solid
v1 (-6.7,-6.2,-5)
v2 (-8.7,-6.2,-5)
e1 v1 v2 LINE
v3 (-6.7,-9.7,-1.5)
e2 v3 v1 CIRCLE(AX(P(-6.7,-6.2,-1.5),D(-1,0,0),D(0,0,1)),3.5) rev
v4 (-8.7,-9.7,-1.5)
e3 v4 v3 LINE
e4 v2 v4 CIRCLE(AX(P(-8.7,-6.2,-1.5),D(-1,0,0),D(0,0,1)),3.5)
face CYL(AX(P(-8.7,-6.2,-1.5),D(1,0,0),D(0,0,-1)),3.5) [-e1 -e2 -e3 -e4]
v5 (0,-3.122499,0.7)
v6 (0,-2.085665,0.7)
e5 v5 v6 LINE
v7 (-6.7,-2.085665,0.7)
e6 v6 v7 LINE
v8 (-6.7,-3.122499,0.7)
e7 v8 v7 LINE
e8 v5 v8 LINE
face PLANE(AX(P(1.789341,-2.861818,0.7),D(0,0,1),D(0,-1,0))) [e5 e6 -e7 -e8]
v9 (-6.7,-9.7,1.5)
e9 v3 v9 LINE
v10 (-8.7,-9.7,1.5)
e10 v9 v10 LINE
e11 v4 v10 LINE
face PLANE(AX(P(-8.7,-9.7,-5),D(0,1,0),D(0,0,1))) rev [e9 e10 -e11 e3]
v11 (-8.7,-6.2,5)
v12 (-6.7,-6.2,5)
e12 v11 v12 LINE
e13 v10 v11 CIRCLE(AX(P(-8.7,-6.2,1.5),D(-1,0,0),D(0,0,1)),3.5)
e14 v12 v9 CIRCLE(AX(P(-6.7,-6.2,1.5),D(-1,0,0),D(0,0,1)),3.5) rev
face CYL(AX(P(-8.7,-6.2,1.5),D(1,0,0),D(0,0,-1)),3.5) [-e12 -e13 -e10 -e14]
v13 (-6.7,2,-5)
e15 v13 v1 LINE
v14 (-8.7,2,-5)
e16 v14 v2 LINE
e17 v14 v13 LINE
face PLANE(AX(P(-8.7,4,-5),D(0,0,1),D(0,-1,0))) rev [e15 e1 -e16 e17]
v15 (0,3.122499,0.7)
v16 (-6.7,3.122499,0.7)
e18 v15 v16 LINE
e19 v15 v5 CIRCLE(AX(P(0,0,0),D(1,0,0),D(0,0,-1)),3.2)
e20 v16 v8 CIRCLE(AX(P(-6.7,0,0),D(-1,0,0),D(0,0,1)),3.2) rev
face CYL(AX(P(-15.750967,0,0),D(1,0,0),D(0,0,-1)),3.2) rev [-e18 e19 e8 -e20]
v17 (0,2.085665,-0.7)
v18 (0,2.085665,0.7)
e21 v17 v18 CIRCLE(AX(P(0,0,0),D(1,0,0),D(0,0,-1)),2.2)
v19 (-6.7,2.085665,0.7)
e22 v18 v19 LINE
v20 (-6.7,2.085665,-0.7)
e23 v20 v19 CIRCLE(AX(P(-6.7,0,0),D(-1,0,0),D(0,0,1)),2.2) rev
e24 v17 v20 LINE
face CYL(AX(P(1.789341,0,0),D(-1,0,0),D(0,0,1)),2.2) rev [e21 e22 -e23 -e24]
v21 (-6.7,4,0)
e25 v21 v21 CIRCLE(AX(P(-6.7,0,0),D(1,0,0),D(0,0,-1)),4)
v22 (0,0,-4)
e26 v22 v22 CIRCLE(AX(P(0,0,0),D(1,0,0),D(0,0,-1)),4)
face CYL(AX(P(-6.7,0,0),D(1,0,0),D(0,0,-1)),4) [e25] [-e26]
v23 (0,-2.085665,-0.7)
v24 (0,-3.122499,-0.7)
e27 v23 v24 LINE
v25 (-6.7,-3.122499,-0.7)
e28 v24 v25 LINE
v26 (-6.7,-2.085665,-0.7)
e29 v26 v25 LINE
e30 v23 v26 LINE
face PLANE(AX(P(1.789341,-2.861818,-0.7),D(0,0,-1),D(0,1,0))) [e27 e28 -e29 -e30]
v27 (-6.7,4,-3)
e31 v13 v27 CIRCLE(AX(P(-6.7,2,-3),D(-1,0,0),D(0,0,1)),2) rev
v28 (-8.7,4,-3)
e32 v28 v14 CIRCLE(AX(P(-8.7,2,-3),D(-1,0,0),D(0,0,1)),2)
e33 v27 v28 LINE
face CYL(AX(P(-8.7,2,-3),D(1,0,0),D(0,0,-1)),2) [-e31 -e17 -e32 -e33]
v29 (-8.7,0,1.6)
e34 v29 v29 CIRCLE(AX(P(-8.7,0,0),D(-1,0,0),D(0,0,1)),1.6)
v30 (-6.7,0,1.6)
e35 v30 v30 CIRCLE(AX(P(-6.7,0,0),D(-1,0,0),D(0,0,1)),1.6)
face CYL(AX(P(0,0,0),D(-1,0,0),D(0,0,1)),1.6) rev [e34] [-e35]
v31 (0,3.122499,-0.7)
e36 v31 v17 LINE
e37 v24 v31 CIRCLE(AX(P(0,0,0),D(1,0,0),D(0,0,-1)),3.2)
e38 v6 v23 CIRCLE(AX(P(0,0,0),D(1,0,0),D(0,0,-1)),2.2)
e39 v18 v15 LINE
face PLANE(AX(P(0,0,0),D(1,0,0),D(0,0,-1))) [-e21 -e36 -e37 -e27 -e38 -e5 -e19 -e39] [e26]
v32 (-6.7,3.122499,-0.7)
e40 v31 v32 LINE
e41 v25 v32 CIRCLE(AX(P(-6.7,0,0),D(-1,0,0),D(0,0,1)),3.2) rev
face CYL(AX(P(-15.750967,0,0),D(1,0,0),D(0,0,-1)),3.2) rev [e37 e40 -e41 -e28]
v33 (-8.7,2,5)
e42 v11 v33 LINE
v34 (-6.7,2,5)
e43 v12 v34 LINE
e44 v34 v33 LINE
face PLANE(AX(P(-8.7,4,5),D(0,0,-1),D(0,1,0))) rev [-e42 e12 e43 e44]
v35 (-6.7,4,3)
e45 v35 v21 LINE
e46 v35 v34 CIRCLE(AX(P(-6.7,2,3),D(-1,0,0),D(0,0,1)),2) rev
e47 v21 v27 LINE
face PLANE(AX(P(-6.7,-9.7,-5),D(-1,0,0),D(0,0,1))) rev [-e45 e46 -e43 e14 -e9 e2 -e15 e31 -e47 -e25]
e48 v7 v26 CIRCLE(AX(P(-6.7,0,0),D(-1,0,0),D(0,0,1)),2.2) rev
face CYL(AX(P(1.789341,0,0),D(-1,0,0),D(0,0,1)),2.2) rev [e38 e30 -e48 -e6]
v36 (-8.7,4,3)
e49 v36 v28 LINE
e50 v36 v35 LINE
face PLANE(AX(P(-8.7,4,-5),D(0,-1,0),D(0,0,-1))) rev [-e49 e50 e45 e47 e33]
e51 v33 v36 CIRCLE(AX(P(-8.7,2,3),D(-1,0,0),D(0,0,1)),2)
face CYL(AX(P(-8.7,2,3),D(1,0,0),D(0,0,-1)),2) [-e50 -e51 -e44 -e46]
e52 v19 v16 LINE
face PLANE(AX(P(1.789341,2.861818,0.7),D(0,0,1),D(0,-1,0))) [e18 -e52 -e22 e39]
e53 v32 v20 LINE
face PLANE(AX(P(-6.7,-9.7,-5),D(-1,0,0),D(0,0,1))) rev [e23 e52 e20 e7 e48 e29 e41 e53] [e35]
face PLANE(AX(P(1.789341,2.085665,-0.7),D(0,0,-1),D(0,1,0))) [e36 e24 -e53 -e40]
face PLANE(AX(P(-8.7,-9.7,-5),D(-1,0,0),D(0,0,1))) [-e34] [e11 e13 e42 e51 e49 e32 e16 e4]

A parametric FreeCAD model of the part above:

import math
import FreeCAD as App
import Part
import Sketcher
Q = App.Units.Quantity


def edges_at(feature, points):
    """Names of the edges that pass closest to the given points."""
    edges = feature.Shape.Edges
    near = lambda p: min(range(len(edges)), key=lambda i: edges[i].distToShape(Part.Vertex(*p))[0])
    return sorted({f"Edge{near(p) + 1}" for p in points})

doc = App.newDocument("Part")
body = doc.addObject("PartDesign::Body", "Body")

# Sketch on YZ plane
sketch1 = body.newObject("Sketcher::SketchObject", "Sketch")
sketch1.AttachmentSupport = (doc.getObject("YZ_Plane"), [""])
sketch1.MapMode = "FlatFace"
sketch1.addGeometry(Part.Circle(App.Vector(0, 0, 0), App.Vector(0, 0, 1), 4), False)
sketch1.addConstraint([
    Sketcher.Constraint("Coincident", 0, 3, -1, 1),
    Sketcher.Constraint("Diameter", 0, Q("8 mm")),
])
pad1 = body.newObject("PartDesign::Pad", "Pad")
pad1.Profile = sketch1
pad1.Length = 6.7
pad1.Reversed = True

# Sketch on YZ plane
sketch2 = body.newObject("Sketcher::SketchObject", "Sketch001")
sketch2.AttachmentSupport = (doc.getObject("YZ_Plane"), [""])
sketch2.MapMode = "FlatFace"
sketch2.AttachmentOffset = App.Placement(App.Vector(0, 0, -6.7), App.Rotation())
sketch2.addGeometry([
    Part.LineSegment(App.Vector(4, -5, 0), App.Vector(-9.7, -5, 0)),
    Part.LineSegment(App.Vector(-9.7, -5, 0), App.Vector(-9.7, 5, 0)),
    Part.LineSegment(App.Vector(-9.7, 5, 0), App.Vector(4, 5, 0)),
    Part.LineSegment(App.Vector(4, 5, 0), App.Vector(4, -5, 0)),
], False)
sketch2.addConstraint([
    Sketcher.Constraint("Coincident", 0, 2, 1, 1),
    Sketcher.Constraint("Coincident", 1, 2, 2, 1),
    Sketcher.Constraint("Coincident", 2, 2, 3, 1),
    Sketcher.Constraint("Coincident", 3, 2, 0, 1),
    Sketcher.Constraint("Horizontal", 0),
    Sketcher.Constraint("Vertical", 1),
    Sketcher.Constraint("Horizontal", 2),
    Sketcher.Constraint("Vertical", 3),
    Sketcher.Constraint("DistanceY", 1, 1, 1, 2, Q("10 mm")),
    Sketcher.Constraint("DistanceX", 0, 2, 0, 1, Q("13.7 mm")),
    Sketcher.Constraint("DistanceY", 0, 2, -1, 1, Q("5 mm")),
    Sketcher.Constraint("DistanceX", -1, 1, 2, 2, Q("4 mm")),
])
pad2 = body.newObject("PartDesign::Pad", "Pad001")
pad2.Profile = sketch2
pad2.Length = 2
pad2.Reversed = True

# Sketch on YZ plane
sketch3 = body.newObject("Sketcher::SketchObject", "Sketch002")
sketch3.AttachmentSupport = (doc.getObject("YZ_Plane"), [""])
sketch3.MapMode = "FlatFace"
sketch3.addGeometry(Part.Circle(App.Vector(0, 0, 0), App.Vector(0, 0, 1), 3.2), False)
sketch3.addConstraint([
    Sketcher.Constraint("Coincident", 0, 3, -1, 1),
    Sketcher.Constraint("Diameter", 0, Q("6.4 mm")),
])
pocket1 = body.newObject("PartDesign::Pocket", "Pocket")
pocket1.Profile = sketch3
pocket1.Length = 6.7

# Sketch on YZ plane
sketch4 = body.newObject("Sketcher::SketchObject", "Sketch003")
sketch4.AttachmentSupport = (doc.getObject("YZ_Plane"), [""])
sketch4.MapMode = "FlatFace"
sketch4.AttachmentOffset = App.Placement(App.Vector(0, 0, -8.7), App.Rotation())
sketch4.addGeometry(Part.Circle(App.Vector(0, 0, 0), App.Vector(0, 0, 1), 1.6), False)
sketch4.addConstraint([
    Sketcher.Constraint("Coincident", 0, 3, -1, 1),
    Sketcher.Constraint("Diameter", 0, Q("3.2 mm")),
])
pocket2 = body.newObject("PartDesign::Pocket", "Pocket001")
pocket2.Profile = sketch4
pocket2.Type = "ThroughAll"
pocket2.Reversed = True

# Sketch on YZ plane
sketch5 = body.newObject("Sketcher::SketchObject", "Sketch004")
sketch5.AttachmentSupport = (doc.getObject("YZ_Plane"), [""])
sketch5.MapMode = "FlatFace"
sketch5.addGeometry([
    Part.ArcOfCircle(Part.Circle(App.Vector(0, 0, 0), App.Vector(0, 0, 1), 2.2), math.radians(161.446995), math.radians(198.553005)),  # 0
    Part.LineSegment(App.Vector(-2.085665, -0.7, 0), App.Vector(-3.122499, -0.7, 0)),  # 1
    Part.ArcOfCircle(Part.Circle(App.Vector(0, 0, 0), App.Vector(0, 0, 1), 3.2), math.radians(167.364375), math.radians(192.635625)),  # 2
    Part.LineSegment(App.Vector(-3.122499, 0.7, 0), App.Vector(-2.085665, 0.7, 0)),  # 3
    Part.LineSegment(App.Vector(3.122499, -0.7, 0), App.Vector(2.085665, -0.7, 0)),  # 4
    Part.ArcOfCircle(Part.Circle(App.Vector(0, 0, 0), App.Vector(0, 0, 1), 2.2), math.radians(-18.553005), math.radians(18.553005)),  # 5
    Part.LineSegment(App.Vector(2.085665, 0.7, 0), App.Vector(3.122499, 0.7, 0)),  # 6
    Part.ArcOfCircle(Part.Circle(App.Vector(0, 0, 0), App.Vector(0, 0, 1), 3.2), math.radians(-12.635625), math.radians(12.635625)),  # 7
], False)
sketch5.addConstraint([
    Sketcher.Constraint("Coincident", 0, 2, 1, 1),
    Sketcher.Constraint("Coincident", 1, 2, 2, 2),
    Sketcher.Constraint("Coincident", 2, 1, 3, 1),
    Sketcher.Constraint("Coincident", 3, 2, 0, 1),
    Sketcher.Constraint("Coincident", 4, 2, 5, 1),
    Sketcher.Constraint("Coincident", 5, 2, 6, 1),
    Sketcher.Constraint("Coincident", 6, 2, 7, 2),
    Sketcher.Constraint("Coincident", 7, 1, 4, 1),
    Sketcher.Constraint("Horizontal", 1),
    Sketcher.Constraint("Horizontal", 3),
    Sketcher.Constraint("Horizontal", 4),
    Sketcher.Constraint("Horizontal", 6),
    Sketcher.Constraint("Coincident", 0, 3, -1, 1),
    Sketcher.Constraint("Coincident", 2, 3, -1, 1),
    Sketcher.Constraint("Coincident", 5, 3, -1, 1),
    Sketcher.Constraint("Coincident", 7, 3, -1, 1),
    Sketcher.Constraint("Equal", 0, 5),
    Sketcher.Constraint("Equal", 2, 7),
    Sketcher.Constraint("Horizontal", 1, 2, 4, 2),
    Sketcher.Constraint("Horizontal", 3, 2, 5, 2),
    Sketcher.Constraint("Vertical", 1, 2, 2, 1),
    Sketcher.Constraint("Radius", 0, Q("2.2 mm")),
    Sketcher.Constraint("Radius", 2, Q("3.2 mm")),
    Sketcher.Constraint("DistanceY", 0, 2, -1, 1, Q("0.7 mm")),
])
pad3 = body.newObject("PartDesign::Pad", "Pad002")
pad3.Profile = sketch5
pad3.Length = 8.7
pad3.Reversed = True
doc.recompute()

fillet = body.newObject("PartDesign::Fillet", "Fillet")
fillet.Base = (pad3, edges_at(pad3, [(-7.7, 4, -5), (-7.7, 4, 5)]))
fillet.Radius = 2
doc.recompute()

fillet2 = body.newObject("PartDesign::Fillet", "Fillet001")
fillet2.Base = (fillet, edges_at(fillet, [(-7.7, -9.7, -5), (-7.7, -9.7, 5)]))
fillet2.Radius = 3.5

doc.recompute()
